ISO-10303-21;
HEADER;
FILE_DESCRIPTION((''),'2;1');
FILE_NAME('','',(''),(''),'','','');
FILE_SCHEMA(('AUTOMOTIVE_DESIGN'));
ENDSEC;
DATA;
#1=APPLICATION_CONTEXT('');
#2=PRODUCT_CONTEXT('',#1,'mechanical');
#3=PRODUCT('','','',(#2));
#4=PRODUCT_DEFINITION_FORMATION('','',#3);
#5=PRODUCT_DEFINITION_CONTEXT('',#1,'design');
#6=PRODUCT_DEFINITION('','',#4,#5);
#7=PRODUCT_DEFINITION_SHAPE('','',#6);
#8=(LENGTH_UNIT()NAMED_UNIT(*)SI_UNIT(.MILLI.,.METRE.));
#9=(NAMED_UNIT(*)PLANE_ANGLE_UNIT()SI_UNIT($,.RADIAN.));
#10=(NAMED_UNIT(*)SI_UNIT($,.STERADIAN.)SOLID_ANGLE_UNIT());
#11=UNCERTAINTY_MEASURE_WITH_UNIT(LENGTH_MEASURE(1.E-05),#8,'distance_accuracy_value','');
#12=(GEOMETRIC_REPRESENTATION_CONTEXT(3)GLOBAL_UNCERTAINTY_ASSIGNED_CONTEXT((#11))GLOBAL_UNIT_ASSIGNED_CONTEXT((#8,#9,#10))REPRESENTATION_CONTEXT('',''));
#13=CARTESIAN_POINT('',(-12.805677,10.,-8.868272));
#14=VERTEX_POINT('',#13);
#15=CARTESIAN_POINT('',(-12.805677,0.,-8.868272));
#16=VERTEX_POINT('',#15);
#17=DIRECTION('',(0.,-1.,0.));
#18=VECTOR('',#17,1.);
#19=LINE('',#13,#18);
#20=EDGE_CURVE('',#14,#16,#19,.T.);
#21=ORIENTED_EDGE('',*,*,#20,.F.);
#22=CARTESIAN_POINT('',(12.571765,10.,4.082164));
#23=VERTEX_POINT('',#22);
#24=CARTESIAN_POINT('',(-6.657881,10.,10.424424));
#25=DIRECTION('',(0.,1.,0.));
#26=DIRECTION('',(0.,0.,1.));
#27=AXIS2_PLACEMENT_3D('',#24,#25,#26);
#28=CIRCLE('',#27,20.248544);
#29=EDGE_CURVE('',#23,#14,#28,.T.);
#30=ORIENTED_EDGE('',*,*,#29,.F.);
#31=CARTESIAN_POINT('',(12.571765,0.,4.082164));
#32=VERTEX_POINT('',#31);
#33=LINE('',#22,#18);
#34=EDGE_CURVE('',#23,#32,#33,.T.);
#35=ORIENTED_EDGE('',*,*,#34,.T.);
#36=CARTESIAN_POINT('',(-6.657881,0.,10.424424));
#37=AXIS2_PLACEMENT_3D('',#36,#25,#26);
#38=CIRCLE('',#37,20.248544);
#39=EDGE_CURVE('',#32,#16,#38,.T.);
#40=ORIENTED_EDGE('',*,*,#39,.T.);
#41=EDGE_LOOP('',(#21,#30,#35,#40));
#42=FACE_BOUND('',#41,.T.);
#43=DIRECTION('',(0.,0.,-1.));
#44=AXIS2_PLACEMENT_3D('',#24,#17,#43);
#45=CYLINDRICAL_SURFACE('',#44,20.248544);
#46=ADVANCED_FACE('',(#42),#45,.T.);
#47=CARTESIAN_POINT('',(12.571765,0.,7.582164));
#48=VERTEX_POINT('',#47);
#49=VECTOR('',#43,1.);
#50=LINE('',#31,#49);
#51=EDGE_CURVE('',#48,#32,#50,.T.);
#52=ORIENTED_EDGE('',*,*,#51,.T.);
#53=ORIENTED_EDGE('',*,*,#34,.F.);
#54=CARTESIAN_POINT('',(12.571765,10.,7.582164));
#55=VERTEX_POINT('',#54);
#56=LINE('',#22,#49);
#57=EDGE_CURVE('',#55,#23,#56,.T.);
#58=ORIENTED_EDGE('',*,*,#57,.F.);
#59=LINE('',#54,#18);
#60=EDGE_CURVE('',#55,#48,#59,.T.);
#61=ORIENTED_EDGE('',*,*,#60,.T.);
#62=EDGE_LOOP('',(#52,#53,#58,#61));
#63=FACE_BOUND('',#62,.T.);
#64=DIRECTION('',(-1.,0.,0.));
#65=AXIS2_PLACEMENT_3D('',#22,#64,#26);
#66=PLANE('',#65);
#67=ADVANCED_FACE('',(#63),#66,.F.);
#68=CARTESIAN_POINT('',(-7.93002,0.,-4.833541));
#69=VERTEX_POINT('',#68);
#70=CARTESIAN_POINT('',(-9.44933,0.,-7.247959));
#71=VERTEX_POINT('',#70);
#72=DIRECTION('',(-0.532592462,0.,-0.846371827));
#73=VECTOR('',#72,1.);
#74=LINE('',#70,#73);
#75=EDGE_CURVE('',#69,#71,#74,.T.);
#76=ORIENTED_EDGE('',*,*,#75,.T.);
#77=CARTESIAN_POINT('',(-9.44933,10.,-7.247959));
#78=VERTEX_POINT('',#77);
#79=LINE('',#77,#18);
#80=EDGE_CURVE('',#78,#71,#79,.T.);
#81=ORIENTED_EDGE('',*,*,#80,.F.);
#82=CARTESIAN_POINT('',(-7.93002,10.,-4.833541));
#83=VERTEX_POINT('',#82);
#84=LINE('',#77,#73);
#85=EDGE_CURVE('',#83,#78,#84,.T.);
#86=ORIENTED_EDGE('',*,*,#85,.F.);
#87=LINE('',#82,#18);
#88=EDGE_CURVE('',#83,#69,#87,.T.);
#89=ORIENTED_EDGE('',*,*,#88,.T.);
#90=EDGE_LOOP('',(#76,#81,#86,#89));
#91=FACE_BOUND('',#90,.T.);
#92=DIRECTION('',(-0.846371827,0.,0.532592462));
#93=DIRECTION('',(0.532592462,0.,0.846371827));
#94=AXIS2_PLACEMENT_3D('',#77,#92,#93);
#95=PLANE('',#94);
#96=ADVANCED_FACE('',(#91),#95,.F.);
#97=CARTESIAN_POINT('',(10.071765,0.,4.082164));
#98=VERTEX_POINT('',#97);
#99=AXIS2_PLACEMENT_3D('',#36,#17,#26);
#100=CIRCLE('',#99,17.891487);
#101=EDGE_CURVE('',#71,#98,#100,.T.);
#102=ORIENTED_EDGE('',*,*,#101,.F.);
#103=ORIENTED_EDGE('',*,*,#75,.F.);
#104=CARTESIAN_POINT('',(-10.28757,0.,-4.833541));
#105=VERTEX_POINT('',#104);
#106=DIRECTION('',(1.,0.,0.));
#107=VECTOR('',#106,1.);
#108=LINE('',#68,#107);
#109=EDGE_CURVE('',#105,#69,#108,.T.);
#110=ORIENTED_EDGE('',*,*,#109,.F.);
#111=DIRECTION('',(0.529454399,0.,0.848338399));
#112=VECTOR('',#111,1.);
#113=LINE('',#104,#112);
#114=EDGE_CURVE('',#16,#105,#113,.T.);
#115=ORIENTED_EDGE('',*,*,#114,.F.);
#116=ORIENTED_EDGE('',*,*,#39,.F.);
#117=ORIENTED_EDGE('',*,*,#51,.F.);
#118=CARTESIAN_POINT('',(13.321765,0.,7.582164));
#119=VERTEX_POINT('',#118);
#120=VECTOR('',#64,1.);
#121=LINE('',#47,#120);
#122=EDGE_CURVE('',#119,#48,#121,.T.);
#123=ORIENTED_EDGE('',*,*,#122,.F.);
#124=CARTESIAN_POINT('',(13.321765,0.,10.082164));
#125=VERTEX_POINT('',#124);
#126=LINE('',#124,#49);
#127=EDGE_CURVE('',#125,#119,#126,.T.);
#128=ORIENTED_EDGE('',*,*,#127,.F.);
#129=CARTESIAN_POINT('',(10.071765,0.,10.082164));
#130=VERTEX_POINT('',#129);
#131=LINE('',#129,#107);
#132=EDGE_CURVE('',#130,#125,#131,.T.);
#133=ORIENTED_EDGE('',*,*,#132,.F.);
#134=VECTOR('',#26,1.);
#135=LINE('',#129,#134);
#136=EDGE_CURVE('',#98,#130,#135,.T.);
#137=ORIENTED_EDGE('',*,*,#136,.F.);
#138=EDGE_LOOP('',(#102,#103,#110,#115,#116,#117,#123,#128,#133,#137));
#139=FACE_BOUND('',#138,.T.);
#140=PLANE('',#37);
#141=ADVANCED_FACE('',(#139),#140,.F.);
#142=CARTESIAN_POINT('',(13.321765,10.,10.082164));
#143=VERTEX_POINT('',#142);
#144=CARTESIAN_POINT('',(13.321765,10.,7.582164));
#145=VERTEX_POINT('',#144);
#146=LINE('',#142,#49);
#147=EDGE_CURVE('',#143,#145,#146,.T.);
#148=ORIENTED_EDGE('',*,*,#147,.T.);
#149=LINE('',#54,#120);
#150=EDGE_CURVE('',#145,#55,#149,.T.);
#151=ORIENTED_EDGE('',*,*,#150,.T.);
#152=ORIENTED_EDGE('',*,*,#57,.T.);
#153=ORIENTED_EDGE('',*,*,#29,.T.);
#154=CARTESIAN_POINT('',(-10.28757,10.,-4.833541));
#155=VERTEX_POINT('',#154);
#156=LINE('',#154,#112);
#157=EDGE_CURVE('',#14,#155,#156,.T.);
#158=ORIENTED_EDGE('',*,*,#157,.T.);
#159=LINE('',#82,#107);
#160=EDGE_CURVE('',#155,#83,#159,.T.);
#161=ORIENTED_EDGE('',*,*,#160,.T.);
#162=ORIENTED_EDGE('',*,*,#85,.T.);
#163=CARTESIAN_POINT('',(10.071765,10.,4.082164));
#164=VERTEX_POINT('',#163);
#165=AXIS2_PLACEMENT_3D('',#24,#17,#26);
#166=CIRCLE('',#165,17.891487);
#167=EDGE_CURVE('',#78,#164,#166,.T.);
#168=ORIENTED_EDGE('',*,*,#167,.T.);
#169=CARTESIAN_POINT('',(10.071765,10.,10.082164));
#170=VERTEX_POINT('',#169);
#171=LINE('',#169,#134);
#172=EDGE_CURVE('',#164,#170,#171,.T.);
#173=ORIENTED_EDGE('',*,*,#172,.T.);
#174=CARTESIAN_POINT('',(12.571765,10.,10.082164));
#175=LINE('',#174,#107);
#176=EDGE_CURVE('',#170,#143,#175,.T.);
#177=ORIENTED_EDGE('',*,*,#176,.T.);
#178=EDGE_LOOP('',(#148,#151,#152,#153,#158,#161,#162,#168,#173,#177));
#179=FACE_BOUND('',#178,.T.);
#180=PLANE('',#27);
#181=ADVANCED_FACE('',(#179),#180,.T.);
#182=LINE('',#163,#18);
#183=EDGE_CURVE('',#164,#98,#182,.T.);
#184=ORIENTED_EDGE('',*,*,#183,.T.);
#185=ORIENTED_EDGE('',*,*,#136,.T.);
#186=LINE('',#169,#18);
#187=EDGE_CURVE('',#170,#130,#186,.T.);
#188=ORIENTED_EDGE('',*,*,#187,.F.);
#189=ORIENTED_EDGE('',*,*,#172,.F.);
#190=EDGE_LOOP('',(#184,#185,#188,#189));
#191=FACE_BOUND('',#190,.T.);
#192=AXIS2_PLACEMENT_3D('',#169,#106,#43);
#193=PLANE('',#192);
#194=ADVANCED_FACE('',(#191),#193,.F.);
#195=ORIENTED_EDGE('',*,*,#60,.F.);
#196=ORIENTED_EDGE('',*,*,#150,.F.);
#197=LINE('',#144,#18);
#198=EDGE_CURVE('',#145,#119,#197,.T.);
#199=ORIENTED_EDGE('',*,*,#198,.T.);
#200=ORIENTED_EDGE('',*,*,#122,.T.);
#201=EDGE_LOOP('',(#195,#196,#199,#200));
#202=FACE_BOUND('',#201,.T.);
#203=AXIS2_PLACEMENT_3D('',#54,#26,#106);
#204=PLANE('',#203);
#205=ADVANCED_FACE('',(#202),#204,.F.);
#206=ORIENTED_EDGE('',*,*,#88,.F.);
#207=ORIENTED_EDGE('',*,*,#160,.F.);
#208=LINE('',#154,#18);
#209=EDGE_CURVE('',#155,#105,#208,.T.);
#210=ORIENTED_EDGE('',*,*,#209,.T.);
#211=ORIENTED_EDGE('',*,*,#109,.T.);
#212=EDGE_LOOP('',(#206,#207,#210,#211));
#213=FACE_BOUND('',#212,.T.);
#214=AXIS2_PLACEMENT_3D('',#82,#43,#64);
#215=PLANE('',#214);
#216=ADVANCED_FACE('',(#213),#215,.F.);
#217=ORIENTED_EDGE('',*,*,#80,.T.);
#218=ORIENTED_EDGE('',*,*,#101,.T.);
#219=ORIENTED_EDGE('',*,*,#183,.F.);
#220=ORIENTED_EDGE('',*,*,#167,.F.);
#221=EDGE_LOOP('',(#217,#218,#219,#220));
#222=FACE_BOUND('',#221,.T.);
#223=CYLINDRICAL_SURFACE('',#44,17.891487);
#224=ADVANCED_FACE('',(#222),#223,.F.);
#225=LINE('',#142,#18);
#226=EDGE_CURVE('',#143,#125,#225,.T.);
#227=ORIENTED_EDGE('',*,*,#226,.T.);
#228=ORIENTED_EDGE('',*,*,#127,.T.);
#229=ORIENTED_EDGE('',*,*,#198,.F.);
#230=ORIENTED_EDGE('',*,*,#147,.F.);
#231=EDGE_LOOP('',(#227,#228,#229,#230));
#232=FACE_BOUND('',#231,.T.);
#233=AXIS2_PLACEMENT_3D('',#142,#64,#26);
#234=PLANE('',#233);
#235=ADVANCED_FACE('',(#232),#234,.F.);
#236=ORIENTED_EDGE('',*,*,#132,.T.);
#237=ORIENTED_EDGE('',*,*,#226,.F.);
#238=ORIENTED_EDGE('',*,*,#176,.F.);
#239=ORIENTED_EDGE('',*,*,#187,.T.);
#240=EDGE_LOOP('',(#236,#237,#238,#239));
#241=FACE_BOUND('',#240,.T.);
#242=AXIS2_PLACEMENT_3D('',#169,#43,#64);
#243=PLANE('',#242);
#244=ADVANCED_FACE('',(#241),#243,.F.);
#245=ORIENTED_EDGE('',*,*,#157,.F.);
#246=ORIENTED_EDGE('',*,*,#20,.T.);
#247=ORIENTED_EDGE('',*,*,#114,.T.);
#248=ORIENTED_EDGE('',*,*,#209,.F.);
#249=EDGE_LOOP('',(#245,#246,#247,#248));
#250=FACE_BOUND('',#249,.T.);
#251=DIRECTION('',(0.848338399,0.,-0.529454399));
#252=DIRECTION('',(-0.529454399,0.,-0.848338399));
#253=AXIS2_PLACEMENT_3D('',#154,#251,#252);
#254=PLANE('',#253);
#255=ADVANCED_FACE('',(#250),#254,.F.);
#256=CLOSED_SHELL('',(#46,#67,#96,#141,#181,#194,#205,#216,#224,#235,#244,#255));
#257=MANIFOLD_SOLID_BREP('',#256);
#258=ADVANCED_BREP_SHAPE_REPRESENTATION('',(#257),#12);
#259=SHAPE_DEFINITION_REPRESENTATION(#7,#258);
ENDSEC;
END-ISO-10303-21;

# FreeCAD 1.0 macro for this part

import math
import FreeCAD as App
import Part
import Sketcher

doc = App.newDocument("Part")
body = doc.addObject("PartDesign::Body", "Body")

# Sketch on XZ plane
sketch1 = body.newObject("Sketcher::SketchObject", "Sketch")
sketch1.AttachmentSupport = (doc.getObject("XZ_Plane"), [""])
sketch1.MapMode = "FlatFace"
sketch1.addGeometry(Part.LineSegment(App.Vector(10.1, 4.1, 0), App.Vector(10.1, 10.1, 0)), False)
sketch1.addGeometry(Part.LineSegment(App.Vector(10.1, 10.1, 0), App.Vector(13.3, 10.1, 0)), False)
sketch1.addGeometry(Part.LineSegment(App.Vector(13.3, 10.1, 0), App.Vector(13.3, 7.6, 0)), False)
sketch1.addGeometry(Part.LineSegment(App.Vector(13.3, 7.6, 0), App.Vector(12.6, 7.6, 0)), False)
sketch1.addGeometry(Part.LineSegment(App.Vector(12.6, 7.6, 0), App.Vector(12.6, 4.1, 0)), False)
sketch1.addGeometry(Part.ArcOfCircle(Part.Circle(App.Vector(-6.7, 10.4, 0), App.Vector(0, 0, 1), 20.2), math.radians(-108), math.radians(-18)), False)
sketch1.addGeometry(Part.LineSegment(App.Vector(-12.8, -8.9, 0), App.Vector(-10.3, -4.8, 0)), False)
sketch1.addGeometry(Part.LineSegment(App.Vector(-10.3, -4.8, 0), App.Vector(-7.9, -4.8, 0)), False)
sketch1.addGeometry(Part.LineSegment(App.Vector(-7.9, -4.8, 0), App.Vector(-9.4, -7.2, 0)), False)
sketch1.addGeometry(Part.ArcOfCircle(Part.Circle(App.Vector(-6.7, 10.4, 0), App.Vector(0, 0, 1), 17.9), math.radians(-99), math.radians(-21)), False)
sketch1.addConstraint(Sketcher.Constraint("Coincident", 0, 2, 1, 1))
sketch1.addConstraint(Sketcher.Constraint("Coincident", 1, 2, 2, 1))
sketch1.addConstraint(Sketcher.Constraint("Coincident", 2, 2, 3, 1))
sketch1.addConstraint(Sketcher.Constraint("Coincident", 3, 2, 4, 1))
sketch1.addConstraint(Sketcher.Constraint("Coincident", 4, 2, 5, 2))
sketch1.addConstraint(Sketcher.Constraint("Coincident", 5, 1, 6, 1))
sketch1.addConstraint(Sketcher.Constraint("Coincident", 6, 2, 7, 1))
sketch1.addConstraint(Sketcher.Constraint("Coincident", 7, 2, 8, 1))
sketch1.addConstraint(Sketcher.Constraint("Coincident", 8, 2, 9, 1))
sketch1.addConstraint(Sketcher.Constraint("Coincident", 9, 2, 0, 1))
sketch1.addConstraint(Sketcher.Constraint("Vertical", 0))
sketch1.addConstraint(Sketcher.Constraint("Horizontal", 1))
sketch1.addConstraint(Sketcher.Constraint("Vertical", 2))
sketch1.addConstraint(Sketcher.Constraint("Horizontal", 3))
sketch1.addConstraint(Sketcher.Constraint("Vertical", 4))
sketch1.addConstraint(Sketcher.Constraint("Horizontal", 7))
sketch1.addConstraint(Sketcher.Constraint("Coincident", 9, 3, 5, 3))
sketch1.addConstraint(Sketcher.Constraint("Horizontal", 4, 2, 9, 2))
sketch1.addConstraint(Sketcher.Constraint("DistanceY", 0, 1, 0, 2, 6.0))
sketch1.addConstraint(Sketcher.Constraint("DistanceY", 2, 2, 2, 1, 2.5))
sketch1.addConstraint(Sketcher.Constraint("DistanceX", 1, 1, 1, 2, 3.25))
sketch1.addConstraint(Sketcher.Constraint("DistanceX", 3, 2, 3, 1, 0.75))
sketch1.addConstraint(Sketcher.Constraint("Radius", 5, 20.248544))
sketch1.addConstraint(Sketcher.Constraint("Radius", 9, 17.891487))
sketch1.addConstraint(Sketcher.Constraint("DistanceX", 7, 1, 7, 2, 2.35755))
sketch1.addConstraint(Sketcher.Constraint("Distance", 6, 4.75604))
sketch1.addConstraint(Sketcher.Constraint("DistanceX", 5, 3, -1, 1, 6.657881))
sketch1.addConstraint(Sketcher.Constraint("DistanceX", 6, 2, -1, 1, 10.28757))
sketch1.addConstraint(Sketcher.Constraint("DistanceY", 6, 2, -1, 1, 4.833541))
sketch1.addConstraint(Sketcher.Constraint("DistanceX", 8, 2, -1, 1, 9.44933))
sketch1.addConstraint(Sketcher.Constraint("DistanceY", 8, 2, -1, 1, 7.247959))
pad1 = body.newObject("PartDesign::Pad", "Pad")
pad1.Profile = sketch1
pad1.Length = 10
pad1.Reversed = True

doc.recompute()
